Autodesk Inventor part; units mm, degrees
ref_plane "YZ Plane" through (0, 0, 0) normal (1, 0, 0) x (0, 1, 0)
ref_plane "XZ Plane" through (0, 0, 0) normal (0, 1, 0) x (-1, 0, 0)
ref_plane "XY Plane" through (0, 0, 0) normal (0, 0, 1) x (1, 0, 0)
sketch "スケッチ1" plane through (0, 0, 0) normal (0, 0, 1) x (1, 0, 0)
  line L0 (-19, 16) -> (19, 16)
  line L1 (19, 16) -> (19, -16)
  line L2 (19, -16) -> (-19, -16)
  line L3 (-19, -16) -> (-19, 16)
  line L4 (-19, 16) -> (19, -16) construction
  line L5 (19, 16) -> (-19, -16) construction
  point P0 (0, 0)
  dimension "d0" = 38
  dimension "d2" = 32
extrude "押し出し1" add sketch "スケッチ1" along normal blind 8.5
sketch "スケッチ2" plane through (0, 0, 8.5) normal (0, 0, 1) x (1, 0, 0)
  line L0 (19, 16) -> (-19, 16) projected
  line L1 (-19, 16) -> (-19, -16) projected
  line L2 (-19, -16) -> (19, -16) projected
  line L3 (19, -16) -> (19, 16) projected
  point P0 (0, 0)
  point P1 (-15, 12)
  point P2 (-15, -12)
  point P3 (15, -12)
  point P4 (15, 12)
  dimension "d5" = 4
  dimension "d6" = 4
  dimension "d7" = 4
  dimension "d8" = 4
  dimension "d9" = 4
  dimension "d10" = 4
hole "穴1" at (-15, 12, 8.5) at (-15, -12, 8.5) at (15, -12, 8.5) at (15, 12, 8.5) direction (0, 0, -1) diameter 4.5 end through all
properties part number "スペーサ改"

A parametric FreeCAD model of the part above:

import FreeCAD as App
import Part
import Sketcher
Q = App.Units.Quantity


def add_polygon(sketch, points):
    """Adds a closed chain of lines whose ends are joined by coincident constraints."""
    first, n = sketch.GeometryCount, len(points)
    for a, b in zip(points, points[1:] + points[:1]):
        sketch.addGeometry(Part.LineSegment(App.Vector(*a, 0), App.Vector(*b, 0)), False)
    for i in range(n):
        sketch.addConstraint(Sketcher.Constraint("Coincident", first + i, 2, first + (i + 1) % n, 1))

doc = App.newDocument("Part")
body = doc.addObject("PartDesign::Body", "Body")

# Sketch on XY plane
sketch1 = body.newObject("Sketcher::SketchObject", "Sketch")
sketch1.AttachmentSupport = (doc.getObject("XY_Plane"), [""])
sketch1.MapMode = "FlatFace"
add_polygon(sketch1, [(19, 16), (-19, 16), (-19, -16), (19, -16)])  # lines 0-3
sketch1.addConstraint(Sketcher.Constraint("Horizontal", 0))
sketch1.addConstraint(Sketcher.Constraint("Vertical", 1))
sketch1.addConstraint(Sketcher.Constraint("Horizontal", 2))
sketch1.addConstraint(Sketcher.Constraint("Vertical", 3))
sketch1.addConstraint(Sketcher.Constraint("Symmetric", 0, 2, 2, 2, -1, 1))
sketch1.addConstraint(Sketcher.Constraint("DistanceX", 0, 2, 0, 1, Q("38 mm")))
sketch1.addConstraint(Sketcher.Constraint("DistanceY", 1, 2, 1, 1, Q("32 mm")))
pad1 = body.newObject("PartDesign::Pad", "Pad")
pad1.Profile = sketch1
pad1.Length = 8.5

# Sketch on XY plane
sketch2 = body.newObject("Sketcher::SketchObject", "Sketch001")
sketch2.AttachmentSupport = (doc.getObject("XY_Plane"), [""])
sketch2.MapMode = "FlatFace"
sketch2.AttachmentOffset = App.Placement(App.Vector(0, 0, 8.5), App.Rotation())
sketch2.addGeometry(Part.Circle(App.Vector(-15, 12, 0), App.Vector(0, 0, 1), 2.2), False)
sketch2.addGeometry(Part.Circle(App.Vector(-15, -12, 0), App.Vector(0, 0, 1), 2.2), False)
sketch2.addGeometry(Part.Circle(App.Vector(15, -12, 0), App.Vector(0, 0, 1), 2.2), False)
sketch2.addGeometry(Part.Circle(App.Vector(15, 12, 0), App.Vector(0, 0, 1), 2.2), False)
sketch2.addConstraint(Sketcher.Constraint("Equal", 0, 1))
sketch2.addConstraint(Sketcher.Constraint("Equal", 1, 2))
sketch2.addConstraint(Sketcher.Constraint("Equal", 2, 3))
sketch2.addConstraint(Sketcher.Constraint("Symmetric", 0, 3, 2, 3, -1, 1))
sketch2.addConstraint(Sketcher.Constraint("Symmetric", 1, 3, 3, 3, -1, 1))
sketch2.addConstraint(Sketcher.Constraint("Symmetric", 1, 3, 2, 3, -2))
sketch2.addConstraint(Sketcher.Constraint("Diameter", 0, Q("4.5 mm")))
sketch2.addConstraint(Sketcher.Constraint("DistanceX", 0, 3, -1, 1, Q("15 mm")))
sketch2.addConstraint(Sketcher.Constraint("DistanceY", -1, 1, 0, 3, Q("12 mm")))
doc.recompute()
hole = body.newObject("PartDesign::Hole", "Hole")
hole.Profile = sketch2
hole.ThreadType = "None"
hole.Diameter = 4.5
hole.DepthType = "ThroughAll"

doc.recompute()
